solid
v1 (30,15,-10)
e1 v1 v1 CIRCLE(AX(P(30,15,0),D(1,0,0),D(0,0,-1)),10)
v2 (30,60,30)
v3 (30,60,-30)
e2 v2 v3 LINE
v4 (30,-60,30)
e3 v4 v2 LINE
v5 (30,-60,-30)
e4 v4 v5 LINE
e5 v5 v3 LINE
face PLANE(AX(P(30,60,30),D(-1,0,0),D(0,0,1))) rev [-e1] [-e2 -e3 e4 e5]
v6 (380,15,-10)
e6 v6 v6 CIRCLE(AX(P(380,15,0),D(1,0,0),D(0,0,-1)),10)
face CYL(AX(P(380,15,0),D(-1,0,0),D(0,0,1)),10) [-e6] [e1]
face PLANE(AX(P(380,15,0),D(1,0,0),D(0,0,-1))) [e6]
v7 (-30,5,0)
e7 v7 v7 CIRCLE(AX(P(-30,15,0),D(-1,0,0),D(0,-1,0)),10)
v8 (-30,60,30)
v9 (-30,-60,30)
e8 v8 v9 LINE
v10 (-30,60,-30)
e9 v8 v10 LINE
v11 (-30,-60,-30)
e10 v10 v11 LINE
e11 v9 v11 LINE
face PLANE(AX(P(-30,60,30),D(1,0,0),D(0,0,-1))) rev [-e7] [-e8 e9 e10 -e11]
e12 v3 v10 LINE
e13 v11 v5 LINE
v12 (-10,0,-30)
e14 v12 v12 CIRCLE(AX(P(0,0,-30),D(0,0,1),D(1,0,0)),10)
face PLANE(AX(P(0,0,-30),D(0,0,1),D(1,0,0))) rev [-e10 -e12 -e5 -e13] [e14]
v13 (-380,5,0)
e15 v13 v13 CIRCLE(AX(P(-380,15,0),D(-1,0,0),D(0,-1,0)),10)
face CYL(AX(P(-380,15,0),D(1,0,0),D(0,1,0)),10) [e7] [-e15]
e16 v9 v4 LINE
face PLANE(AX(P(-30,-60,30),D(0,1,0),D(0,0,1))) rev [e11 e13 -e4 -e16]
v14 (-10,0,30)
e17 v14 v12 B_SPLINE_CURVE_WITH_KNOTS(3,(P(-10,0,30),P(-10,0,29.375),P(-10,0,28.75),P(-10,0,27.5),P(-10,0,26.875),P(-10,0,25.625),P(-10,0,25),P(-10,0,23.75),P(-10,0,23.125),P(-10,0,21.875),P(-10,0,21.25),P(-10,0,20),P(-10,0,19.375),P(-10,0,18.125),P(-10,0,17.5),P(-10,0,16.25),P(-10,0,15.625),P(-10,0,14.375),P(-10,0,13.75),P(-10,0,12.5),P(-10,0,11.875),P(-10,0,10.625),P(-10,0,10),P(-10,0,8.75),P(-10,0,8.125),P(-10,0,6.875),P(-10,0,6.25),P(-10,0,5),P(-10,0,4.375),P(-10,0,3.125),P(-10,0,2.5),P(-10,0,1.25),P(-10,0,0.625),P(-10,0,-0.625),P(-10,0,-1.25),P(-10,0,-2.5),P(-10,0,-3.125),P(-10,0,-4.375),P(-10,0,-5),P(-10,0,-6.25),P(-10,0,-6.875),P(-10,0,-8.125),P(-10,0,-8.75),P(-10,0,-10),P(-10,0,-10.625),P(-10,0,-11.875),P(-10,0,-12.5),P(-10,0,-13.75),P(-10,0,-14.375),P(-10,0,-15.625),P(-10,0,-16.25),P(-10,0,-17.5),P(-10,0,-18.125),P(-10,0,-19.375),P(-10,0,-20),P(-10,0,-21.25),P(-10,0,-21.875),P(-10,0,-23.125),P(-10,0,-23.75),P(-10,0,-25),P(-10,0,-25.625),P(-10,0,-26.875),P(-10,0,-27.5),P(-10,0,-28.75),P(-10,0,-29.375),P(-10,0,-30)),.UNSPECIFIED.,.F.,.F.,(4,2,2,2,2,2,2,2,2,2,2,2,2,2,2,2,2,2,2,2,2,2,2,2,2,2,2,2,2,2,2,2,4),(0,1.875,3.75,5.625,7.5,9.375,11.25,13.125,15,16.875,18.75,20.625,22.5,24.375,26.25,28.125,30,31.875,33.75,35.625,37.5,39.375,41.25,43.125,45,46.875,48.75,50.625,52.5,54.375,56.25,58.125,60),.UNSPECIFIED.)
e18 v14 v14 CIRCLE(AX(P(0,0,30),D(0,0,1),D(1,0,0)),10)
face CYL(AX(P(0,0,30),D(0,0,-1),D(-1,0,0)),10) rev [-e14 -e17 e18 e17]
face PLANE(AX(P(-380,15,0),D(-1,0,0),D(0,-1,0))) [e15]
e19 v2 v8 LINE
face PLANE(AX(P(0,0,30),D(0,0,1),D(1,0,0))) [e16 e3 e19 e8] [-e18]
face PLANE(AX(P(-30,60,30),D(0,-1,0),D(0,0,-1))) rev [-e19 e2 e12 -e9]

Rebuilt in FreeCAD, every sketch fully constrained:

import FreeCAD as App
import Part
import Sketcher
from FreeCAD import Vector

doc = App.newDocument("Part")
body = doc.addObject("PartDesign::Body", "Body")

# Sketch on XY plane
sketch1 = doc.addObject("Sketcher::SketchObject", "Sketch")
body.addObject(sketch1)
sketch1.AttachmentSupport = (doc.XY_Plane, [""])
sketch1.MapMode = "FlatFace"
sketch1.addGeometry(Part.LineSegment(Vector(-30, 60, 0), Vector(-30, -60, 0)), False)
sketch1.addGeometry(Part.LineSegment(Vector(-30, -60, 0), Vector(30, -60, 0)), False)
sketch1.addGeometry(Part.LineSegment(Vector(30, -60, 0), Vector(30, 60, 0)), False)
sketch1.addGeometry(Part.LineSegment(Vector(30, 60, 0), Vector(-30, 60, 0)), False)
sketch1.addGeometry(Part.Circle(Vector(0, 0, 0), Vector(0, 0, 1), 10), False)
sketch1.addConstraint(Sketcher.Constraint("Coincident", 0, 2, 1, 1))
sketch1.addConstraint(Sketcher.Constraint("Coincident", 1, 2, 2, 1))
sketch1.addConstraint(Sketcher.Constraint("Coincident", 2, 2, 3, 1))
sketch1.addConstraint(Sketcher.Constraint("Coincident", 3, 2, 0, 1))
sketch1.addConstraint(Sketcher.Constraint("Vertical", 0))
sketch1.addConstraint(Sketcher.Constraint("Horizontal", 1))
sketch1.addConstraint(Sketcher.Constraint("Vertical", 2))
sketch1.addConstraint(Sketcher.Constraint("Horizontal", 3))
sketch1.addConstraint(Sketcher.Constraint("Coincident", 4, 3, -1, 1))
sketch1.addConstraint(Sketcher.Constraint("Symmetric", 0, 2, 2, 2, -1, 1))
sketch1.addConstraint(Sketcher.Constraint("Diameter", 4, 20.0))
sketch1.addConstraint(Sketcher.Constraint("DistanceX", 1, 1, 1, 2, 60.0))
sketch1.addConstraint(Sketcher.Constraint("DistanceY", 0, 2, 0, 1, 120.0))
pad1 = doc.addObject("PartDesign::Pad", "Pad")
body.addObject(pad1)
pad1.Profile = sketch1
pad1.Length = 60
pad1.Midplane = True

# Sketch on YZ plane
sketch2 = doc.addObject("Sketcher::SketchObject", "Sketch001")
body.addObject(sketch2)
sketch2.AttachmentSupport = (doc.YZ_Plane, [""])
sketch2.MapMode = "FlatFace"
sketch2.AttachmentOffset = App.Placement(Vector(0, 0, -30), App.Rotation())
sketch2.addGeometry(Part.Circle(Vector(15, 0, 0), Vector(0, 0, 1), 10), False)
sketch2.addConstraint(Sketcher.Constraint("PointOnObject", 0, 3, -1))
sketch2.addConstraint(Sketcher.Constraint("Diameter", 0, 20.0))
sketch2.addConstraint(Sketcher.Constraint("DistanceX", -1, 1, 0, 3, 15.0))
pad2 = doc.addObject("PartDesign::Pad", "Pad001")
body.addObject(pad2)
pad2.Profile = sketch2
pad2.Length = 350
pad2.Reversed = True

# Sketch on YZ plane
sketch3 = doc.addObject("Sketcher::SketchObject", "Sketch002")
body.addObject(sketch3)
sketch3.AttachmentSupport = (doc.YZ_Plane, [""])
sketch3.MapMode = "FlatFace"
sketch3.AttachmentOffset = App.Placement(Vector(0, 0, 380), App.Rotation())
sketch3.addGeometry(Part.Circle(Vector(15, 0, 0), Vector(0, 0, 1), 10), False)
sketch3.addConstraint(Sketcher.Constraint("PointOnObject", 0, 3, -1))
sketch3.addConstraint(Sketcher.Constraint("Diameter", 0, 20.0))
sketch3.addConstraint(Sketcher.Constraint("DistanceX", -1, 1, 0, 3, 15.0))
pad3 = doc.addObject("PartDesign::Pad", "Pad002")
body.addObject(pad3)
pad3.Profile = sketch3
pad3.Length = 350
pad3.Reversed = True

doc.recompute()
